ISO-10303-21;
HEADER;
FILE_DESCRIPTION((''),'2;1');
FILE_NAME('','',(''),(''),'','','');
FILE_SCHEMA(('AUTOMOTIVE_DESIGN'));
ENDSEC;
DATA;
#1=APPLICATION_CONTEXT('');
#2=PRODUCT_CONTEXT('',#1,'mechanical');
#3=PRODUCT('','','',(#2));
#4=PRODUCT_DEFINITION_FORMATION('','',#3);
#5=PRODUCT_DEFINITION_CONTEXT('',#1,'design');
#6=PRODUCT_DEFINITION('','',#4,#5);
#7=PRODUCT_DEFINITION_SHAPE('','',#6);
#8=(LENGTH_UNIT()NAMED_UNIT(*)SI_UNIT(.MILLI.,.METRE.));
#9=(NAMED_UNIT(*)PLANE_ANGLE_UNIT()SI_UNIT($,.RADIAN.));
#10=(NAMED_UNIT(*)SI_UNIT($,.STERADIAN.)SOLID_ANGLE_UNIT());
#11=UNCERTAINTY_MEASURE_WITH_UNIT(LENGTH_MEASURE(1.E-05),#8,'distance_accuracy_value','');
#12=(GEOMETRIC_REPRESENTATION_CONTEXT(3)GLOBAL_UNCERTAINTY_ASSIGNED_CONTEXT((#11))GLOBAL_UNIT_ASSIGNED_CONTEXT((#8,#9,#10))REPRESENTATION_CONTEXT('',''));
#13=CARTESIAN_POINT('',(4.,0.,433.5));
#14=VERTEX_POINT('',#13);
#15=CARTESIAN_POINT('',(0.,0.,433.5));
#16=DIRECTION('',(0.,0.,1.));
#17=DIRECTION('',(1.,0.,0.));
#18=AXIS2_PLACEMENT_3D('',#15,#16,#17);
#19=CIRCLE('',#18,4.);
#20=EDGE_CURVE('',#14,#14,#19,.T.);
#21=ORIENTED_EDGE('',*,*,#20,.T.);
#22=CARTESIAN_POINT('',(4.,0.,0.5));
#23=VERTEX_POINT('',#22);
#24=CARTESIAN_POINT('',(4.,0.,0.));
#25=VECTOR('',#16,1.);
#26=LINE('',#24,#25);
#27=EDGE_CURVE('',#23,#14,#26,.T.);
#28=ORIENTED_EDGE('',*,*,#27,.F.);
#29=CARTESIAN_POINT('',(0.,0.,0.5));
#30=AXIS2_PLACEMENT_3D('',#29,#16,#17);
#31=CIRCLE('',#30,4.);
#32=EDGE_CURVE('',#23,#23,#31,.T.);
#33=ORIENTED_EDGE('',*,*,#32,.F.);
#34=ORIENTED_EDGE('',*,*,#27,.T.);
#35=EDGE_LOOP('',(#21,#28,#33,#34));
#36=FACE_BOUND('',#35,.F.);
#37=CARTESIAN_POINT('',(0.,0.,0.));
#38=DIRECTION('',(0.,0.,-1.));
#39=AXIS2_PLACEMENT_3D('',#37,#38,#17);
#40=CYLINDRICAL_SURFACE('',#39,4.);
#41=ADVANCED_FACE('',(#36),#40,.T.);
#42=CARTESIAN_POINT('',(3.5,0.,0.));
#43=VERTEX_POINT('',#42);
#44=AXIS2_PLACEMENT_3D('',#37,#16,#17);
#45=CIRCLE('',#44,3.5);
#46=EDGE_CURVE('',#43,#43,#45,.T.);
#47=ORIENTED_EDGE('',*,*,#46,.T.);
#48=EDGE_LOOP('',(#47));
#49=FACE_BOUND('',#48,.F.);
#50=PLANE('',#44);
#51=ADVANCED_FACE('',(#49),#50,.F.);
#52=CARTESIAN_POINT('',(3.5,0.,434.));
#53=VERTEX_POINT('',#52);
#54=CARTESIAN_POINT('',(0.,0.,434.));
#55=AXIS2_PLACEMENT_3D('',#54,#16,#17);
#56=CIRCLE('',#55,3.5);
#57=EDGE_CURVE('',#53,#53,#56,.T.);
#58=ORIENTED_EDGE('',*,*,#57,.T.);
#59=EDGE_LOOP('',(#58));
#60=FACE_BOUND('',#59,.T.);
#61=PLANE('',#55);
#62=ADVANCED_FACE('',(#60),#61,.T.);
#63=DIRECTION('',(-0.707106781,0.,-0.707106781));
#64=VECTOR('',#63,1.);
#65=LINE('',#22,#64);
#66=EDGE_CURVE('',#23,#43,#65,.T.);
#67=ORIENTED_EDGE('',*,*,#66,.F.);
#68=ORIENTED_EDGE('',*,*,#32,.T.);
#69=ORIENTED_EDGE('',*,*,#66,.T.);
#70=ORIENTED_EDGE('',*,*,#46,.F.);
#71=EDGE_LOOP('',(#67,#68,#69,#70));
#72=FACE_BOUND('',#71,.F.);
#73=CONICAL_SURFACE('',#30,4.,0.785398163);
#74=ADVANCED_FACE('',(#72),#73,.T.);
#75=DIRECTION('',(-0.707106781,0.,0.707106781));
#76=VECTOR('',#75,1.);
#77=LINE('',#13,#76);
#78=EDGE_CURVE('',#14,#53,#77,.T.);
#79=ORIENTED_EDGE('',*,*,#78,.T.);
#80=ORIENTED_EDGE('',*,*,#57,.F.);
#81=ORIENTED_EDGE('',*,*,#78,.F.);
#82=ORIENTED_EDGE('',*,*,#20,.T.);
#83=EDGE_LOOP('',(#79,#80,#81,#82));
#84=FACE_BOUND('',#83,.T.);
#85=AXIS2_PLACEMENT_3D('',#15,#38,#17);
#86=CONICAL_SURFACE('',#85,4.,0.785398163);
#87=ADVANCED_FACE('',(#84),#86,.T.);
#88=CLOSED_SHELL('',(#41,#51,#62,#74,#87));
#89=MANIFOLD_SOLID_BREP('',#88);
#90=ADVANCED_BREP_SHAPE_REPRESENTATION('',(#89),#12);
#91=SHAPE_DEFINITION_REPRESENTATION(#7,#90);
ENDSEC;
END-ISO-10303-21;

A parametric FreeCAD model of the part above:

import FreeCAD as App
import Part
import Sketcher

V = App.Vector


def edges_at(feature, points):
    """Names of the edges that pass closest to the given points."""
    edges = feature.Shape.Edges
    near = lambda p: min(range(len(edges)), key=lambda i: edges[i].distToShape(Part.Vertex(*p))[0])
    return sorted({f"Edge{near(p) + 1}" for p in points})

doc = App.newDocument("Part")
body = doc.addObject("PartDesign::Body", "Body")

# Sketch on XY plane
sketch1 = body.newObject("Sketcher::SketchObject", "Sketch")
sketch1.AttachmentSupport = (doc.getObject("XY_Plane"), [""])
sketch1.MapMode = "FlatFace"
sketch1.addGeometry(Part.Circle(V(0, 0, 0), V(0, 0, 1), 4), False)
sketch1.addConstraint([
    Sketcher.Constraint("Coincident", 0, 3, -1, 1),
    Sketcher.Constraint("Diameter", 0, 8.0),
])
pad1 = body.newObject("PartDesign::Pad", "Pad")
pad1.Profile = sketch1
pad1.Length = 434
doc.recompute()

chamfer = body.newObject("PartDesign::Chamfer", "Chamfer")
chamfer.Base = (pad1, edges_at(pad1, [(-4, 0, 434), (-4, 0, 0)]))
chamfer.Size = 0.5

doc.recompute()
